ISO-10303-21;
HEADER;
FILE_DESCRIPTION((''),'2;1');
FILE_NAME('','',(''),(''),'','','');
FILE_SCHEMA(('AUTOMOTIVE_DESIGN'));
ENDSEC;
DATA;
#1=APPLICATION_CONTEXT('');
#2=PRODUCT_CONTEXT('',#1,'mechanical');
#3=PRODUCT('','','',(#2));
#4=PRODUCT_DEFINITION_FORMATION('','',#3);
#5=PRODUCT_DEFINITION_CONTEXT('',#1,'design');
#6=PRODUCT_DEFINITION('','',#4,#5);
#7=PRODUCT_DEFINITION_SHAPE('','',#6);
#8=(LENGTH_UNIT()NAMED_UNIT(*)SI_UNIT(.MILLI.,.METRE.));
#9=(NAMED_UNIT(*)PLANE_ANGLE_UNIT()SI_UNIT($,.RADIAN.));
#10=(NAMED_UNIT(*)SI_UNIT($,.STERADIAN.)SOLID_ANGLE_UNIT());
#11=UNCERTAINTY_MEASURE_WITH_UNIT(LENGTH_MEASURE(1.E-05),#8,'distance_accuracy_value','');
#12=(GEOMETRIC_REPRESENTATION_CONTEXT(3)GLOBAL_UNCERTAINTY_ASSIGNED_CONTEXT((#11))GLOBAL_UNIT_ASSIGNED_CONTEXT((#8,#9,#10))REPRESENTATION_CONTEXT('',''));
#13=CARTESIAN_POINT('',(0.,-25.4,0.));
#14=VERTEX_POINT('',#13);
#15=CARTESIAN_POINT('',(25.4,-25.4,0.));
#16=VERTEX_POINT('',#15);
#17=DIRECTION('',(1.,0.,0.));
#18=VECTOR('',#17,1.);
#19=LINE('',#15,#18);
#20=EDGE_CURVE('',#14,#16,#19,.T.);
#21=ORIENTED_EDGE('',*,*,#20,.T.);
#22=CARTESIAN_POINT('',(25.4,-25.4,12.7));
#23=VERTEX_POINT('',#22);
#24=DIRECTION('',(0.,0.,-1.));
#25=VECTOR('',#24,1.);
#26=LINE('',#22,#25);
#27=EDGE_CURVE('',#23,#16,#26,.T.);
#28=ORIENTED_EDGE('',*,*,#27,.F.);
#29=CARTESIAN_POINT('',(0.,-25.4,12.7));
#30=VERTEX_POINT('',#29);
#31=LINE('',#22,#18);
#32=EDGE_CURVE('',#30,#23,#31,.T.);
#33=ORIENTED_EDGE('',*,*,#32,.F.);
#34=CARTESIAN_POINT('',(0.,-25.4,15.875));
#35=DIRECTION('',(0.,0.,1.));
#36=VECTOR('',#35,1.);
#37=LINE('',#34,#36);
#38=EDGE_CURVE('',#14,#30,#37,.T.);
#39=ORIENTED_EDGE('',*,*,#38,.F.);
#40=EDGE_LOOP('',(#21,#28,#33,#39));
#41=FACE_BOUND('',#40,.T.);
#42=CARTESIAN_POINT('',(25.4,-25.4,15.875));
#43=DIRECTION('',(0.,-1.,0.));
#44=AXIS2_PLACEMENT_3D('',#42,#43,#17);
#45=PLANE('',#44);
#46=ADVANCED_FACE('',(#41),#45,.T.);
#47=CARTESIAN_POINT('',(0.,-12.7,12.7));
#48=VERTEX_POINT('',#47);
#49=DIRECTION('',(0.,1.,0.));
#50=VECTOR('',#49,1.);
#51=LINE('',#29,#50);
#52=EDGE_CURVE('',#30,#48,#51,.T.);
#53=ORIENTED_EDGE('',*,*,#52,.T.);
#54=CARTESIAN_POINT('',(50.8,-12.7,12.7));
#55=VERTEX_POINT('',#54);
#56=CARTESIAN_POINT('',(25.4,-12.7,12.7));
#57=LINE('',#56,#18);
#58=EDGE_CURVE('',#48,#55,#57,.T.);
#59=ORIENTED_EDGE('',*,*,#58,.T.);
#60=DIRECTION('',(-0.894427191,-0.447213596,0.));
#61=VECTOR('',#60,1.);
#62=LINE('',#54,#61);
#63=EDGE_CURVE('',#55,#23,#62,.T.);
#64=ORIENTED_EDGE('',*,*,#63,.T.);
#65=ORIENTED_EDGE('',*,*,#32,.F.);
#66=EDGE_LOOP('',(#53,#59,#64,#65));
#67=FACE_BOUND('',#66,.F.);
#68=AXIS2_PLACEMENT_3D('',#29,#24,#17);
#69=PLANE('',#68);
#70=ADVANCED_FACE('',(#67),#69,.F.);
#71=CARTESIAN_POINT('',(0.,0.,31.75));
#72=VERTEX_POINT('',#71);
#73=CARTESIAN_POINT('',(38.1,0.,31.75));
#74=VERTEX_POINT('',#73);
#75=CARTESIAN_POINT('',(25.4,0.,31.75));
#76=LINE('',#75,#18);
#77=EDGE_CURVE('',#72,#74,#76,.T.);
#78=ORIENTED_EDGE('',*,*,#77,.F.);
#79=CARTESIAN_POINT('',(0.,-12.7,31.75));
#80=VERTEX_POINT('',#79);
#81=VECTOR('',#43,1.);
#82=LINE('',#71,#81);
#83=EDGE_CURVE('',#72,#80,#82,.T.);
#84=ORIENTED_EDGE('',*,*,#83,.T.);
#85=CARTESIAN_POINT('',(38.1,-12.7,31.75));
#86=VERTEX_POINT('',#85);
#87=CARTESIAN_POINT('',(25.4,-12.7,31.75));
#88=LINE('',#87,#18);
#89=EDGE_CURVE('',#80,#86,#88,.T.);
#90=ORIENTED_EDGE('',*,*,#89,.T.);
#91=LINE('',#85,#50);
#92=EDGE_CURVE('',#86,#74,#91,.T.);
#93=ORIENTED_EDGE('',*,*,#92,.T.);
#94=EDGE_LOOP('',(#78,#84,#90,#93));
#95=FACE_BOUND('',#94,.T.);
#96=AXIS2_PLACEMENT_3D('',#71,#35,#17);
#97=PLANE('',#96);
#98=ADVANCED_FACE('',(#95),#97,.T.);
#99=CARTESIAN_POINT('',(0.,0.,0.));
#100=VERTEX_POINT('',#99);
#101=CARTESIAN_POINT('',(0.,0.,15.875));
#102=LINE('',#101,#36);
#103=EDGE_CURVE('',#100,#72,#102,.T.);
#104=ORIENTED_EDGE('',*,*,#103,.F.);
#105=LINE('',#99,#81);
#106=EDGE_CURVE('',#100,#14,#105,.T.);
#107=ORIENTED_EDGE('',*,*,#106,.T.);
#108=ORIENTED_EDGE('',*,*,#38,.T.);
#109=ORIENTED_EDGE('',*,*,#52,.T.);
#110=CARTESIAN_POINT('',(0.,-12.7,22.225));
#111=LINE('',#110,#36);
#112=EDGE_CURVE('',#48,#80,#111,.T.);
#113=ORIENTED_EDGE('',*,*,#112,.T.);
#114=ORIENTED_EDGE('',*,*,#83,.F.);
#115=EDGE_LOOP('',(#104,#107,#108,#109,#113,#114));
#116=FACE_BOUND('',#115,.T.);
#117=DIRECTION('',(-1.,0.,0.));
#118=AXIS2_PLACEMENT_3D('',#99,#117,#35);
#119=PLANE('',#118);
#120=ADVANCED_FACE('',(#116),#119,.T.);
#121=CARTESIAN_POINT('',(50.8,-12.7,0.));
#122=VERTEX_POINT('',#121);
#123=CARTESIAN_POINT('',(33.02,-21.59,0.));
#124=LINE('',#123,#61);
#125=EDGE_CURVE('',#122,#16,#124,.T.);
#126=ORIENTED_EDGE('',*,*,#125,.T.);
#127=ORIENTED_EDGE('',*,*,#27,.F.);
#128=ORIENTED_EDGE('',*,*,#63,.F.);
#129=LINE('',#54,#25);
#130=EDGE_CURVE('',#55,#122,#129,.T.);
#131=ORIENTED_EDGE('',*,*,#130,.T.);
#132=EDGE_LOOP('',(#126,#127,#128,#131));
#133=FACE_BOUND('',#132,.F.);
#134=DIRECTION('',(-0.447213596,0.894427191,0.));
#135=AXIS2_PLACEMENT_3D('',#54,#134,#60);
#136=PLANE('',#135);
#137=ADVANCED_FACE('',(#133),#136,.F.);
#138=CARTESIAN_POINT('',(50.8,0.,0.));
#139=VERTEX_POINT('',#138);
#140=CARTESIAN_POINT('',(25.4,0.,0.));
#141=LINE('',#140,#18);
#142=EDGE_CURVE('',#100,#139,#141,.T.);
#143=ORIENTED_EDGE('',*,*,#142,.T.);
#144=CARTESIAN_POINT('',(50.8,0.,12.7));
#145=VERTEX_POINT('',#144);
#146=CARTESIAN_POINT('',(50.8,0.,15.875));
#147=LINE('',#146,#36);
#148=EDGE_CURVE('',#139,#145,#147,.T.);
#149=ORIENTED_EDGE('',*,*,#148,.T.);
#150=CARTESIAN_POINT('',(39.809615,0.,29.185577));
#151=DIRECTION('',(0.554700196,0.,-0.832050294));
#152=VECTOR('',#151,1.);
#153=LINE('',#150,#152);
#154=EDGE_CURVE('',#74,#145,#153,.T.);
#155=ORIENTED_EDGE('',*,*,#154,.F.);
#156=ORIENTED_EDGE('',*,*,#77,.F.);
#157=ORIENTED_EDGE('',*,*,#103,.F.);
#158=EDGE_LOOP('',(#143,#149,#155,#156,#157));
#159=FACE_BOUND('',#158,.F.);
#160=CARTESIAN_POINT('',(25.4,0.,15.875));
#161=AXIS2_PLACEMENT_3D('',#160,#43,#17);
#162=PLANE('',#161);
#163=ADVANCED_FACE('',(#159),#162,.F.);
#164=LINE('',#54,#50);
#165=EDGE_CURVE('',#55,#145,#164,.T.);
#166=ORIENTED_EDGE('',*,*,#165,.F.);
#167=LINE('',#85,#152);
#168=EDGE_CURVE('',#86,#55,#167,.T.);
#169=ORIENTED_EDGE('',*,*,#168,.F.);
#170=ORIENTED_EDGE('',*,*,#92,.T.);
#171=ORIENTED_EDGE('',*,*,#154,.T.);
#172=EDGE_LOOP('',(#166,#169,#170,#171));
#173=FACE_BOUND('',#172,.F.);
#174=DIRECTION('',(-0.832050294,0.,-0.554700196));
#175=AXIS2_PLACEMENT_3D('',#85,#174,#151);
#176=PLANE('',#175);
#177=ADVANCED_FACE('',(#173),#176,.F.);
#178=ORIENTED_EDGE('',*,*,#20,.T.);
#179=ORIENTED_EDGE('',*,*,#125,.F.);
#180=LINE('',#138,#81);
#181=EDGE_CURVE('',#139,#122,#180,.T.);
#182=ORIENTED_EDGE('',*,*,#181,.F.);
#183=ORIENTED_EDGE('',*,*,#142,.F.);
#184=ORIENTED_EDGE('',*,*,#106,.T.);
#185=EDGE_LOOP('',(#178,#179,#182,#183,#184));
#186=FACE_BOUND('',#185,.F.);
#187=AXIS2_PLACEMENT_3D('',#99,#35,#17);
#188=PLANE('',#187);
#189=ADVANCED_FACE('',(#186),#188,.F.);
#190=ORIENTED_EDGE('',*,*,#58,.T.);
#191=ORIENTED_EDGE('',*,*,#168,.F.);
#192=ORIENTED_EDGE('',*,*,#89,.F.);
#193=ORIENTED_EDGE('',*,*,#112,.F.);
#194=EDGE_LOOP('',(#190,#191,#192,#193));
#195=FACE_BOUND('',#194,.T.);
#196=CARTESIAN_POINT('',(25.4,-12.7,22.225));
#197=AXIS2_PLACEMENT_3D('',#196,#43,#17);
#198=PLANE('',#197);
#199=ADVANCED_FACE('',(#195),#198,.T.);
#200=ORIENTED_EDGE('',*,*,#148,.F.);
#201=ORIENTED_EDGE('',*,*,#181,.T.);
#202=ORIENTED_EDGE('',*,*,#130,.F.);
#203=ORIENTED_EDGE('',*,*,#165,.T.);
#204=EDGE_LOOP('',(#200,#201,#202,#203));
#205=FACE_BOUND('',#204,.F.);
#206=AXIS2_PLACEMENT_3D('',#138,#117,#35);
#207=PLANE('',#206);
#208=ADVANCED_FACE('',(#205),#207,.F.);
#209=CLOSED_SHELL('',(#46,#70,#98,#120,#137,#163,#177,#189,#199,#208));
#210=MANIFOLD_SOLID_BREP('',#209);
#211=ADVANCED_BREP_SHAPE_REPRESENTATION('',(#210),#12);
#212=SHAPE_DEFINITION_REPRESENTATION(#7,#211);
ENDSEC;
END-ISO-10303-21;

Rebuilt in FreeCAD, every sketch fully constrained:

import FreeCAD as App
import Part
import Sketcher

V = App.Vector
Q = App.Units.Quantity

doc = App.newDocument("Part")
body = doc.addObject("PartDesign::Body", "Body")

sketch1 = body.newObject("Sketcher::SketchObject", "Sketch")
sketch1.AttachmentSupport = (doc.getObject("XZ_Plane"), [""])
sketch1.MapMode = "FlatFace"
sketch1.addGeometry([
    Part.LineSegment(V(0, 31.75, 0), V(0, 0, 0)),
    Part.LineSegment(V(0, 0, 0), V(50.8, 0, 0)),
    Part.LineSegment(V(50.8, 0, 0), V(50.8, 31.75, 0)),
    Part.LineSegment(V(50.8, 31.75, 0), V(0, 31.75, 0)),
], False)
sketch1.addConstraint([
    Sketcher.Constraint("Coincident", 0, 2, 1, 1),
    Sketcher.Constraint("Coincident", 1, 2, 2, 1),
    Sketcher.Constraint("Coincident", 2, 2, 3, 1),
    Sketcher.Constraint("Coincident", 3, 2, 0, 1),
    Sketcher.Constraint("Vertical", 0),
    Sketcher.Constraint("Horizontal", 1),
    Sketcher.Constraint("Vertical", 2),
    Sketcher.Constraint("Horizontal", 3),
    Sketcher.Constraint("Coincident", 0, 2, -1, 1),
    Sketcher.Constraint("DistanceX", 1, 1, 1, 2, Q("2 in")),
    Sketcher.Constraint("DistanceY", 0, 2, 0, 1, Q("1.25 in")),
])
pad1 = body.newObject("PartDesign::Pad", "Pad")
pad1.Profile = sketch1
pad1.Length = Q("1 in")

sketch2 = body.newObject("Sketcher::SketchObject", "Sketch001")
sketch2.AttachmentSupport = (doc.getObject("XZ_Plane"), [""])
sketch2.MapMode = "FlatFace"
sketch2.AttachmentOffset = App.Placement(V(0, 0, 1 * 25.4), App.Rotation())
sketch2.addGeometry([
    Part.LineSegment(V(0, 31.75, 0), V(0, 12.7, 0)),
    Part.LineSegment(V(0, 12.7, 0), V(50.8, 12.7, 0)),
    Part.LineSegment(V(50.8, 12.7, 0), V(50.8, 31.75, 0)),
    Part.LineSegment(V(50.8, 31.75, 0), V(0, 31.75, 0)),
], False)
sketch2.addConstraint([
    Sketcher.Constraint("Coincident", 0, 2, 1, 1),
    Sketcher.Constraint("Coincident", 1, 2, 2, 1),
    Sketcher.Constraint("Coincident", 2, 2, 3, 1),
    Sketcher.Constraint("Coincident", 3, 2, 0, 1),
    Sketcher.Constraint("Vertical", 0),
    Sketcher.Constraint("Horizontal", 1),
    Sketcher.Constraint("Vertical", 2),
    Sketcher.Constraint("Horizontal", 3),
    Sketcher.Constraint("PointOnObject", 0, 2, -2),
    Sketcher.Constraint("DistanceX", 1, 1, 1, 2, Q("2 in")),
    Sketcher.Constraint("DistanceY", 0, 2, 0, 1, Q("0.75 in")),
    Sketcher.Constraint("DistanceY", -1, 1, 0, 2, Q("0.5 in")),
])
pocket1 = body.newObject("PartDesign::Pocket", "Pocket")
pocket1.Profile = sketch2
pocket1.Length = Q("0.5 in")

sketch3 = body.newObject("Sketcher::SketchObject", "Sketch002")
sketch3.AttachmentSupport = (doc.getObject("XY_Plane"), [""])
sketch3.MapMode = "FlatFace"
sketch3.AttachmentOffset = App.Placement(V(0, 0, 0.5 * 25.4), App.Rotation())
sketch3.addGeometry([
    Part.LineSegment(V(50.8, -25.4, 0), V(50.8, -12.7, 0)),
    Part.LineSegment(V(50.8, -12.7, 0), V(25.4, -25.4, 0)),
    Part.LineSegment(V(25.4, -25.4, 0), V(50.8, -25.4, 0)),
], False)
sketch3.addConstraint([
    Sketcher.Constraint("Coincident", 0, 2, 1, 1),
    Sketcher.Constraint("Coincident", 1, 2, 2, 1),
    Sketcher.Constraint("Coincident", 2, 2, 0, 1),
    Sketcher.Constraint("Vertical", 0),
    Sketcher.Constraint("Horizontal", 2),
    Sketcher.Constraint("DistanceX", 2, 1, 2, 2, Q("1 in")),
    Sketcher.Constraint("DistanceY", 0, 1, 0, 2, Q("0.5 in")),
    Sketcher.Constraint("DistanceX", -1, 1, 0, 2, Q("2 in")),
    Sketcher.Constraint("DistanceY", 1, 2, -1, 1, Q("1 in")),
])
pocket2 = body.newObject("PartDesign::Pocket", "Pocket001")
pocket2.Profile = sketch3
pocket2.Length = Q("1 in")

sketch4 = body.newObject("Sketcher::SketchObject", "Sketch003")
sketch4.AttachmentSupport = (doc.getObject("XZ_Plane"), [""])
sketch4.MapMode = "FlatFace"
sketch4.AttachmentOffset = App.Placement(V(0, 0, 0.5 * 25.4), App.Rotation())
sketch4.addGeometry([
    Part.LineSegment(V(38.1, 31.75, 0), V(50.8, 12.7, 0)),
    Part.LineSegment(V(50.8, 12.7, 0), V(50.8, 31.75, 0)),
    Part.LineSegment(V(50.8, 31.75, 0), V(38.1, 31.75, 0)),
], False)
sketch4.addConstraint([
    Sketcher.Constraint("Coincident", 0, 2, 1, 1),
    Sketcher.Constraint("Coincident", 1, 2, 2, 1),
    Sketcher.Constraint("Coincident", 2, 2, 0, 1),
    Sketcher.Constraint("Vertical", 1),
    Sketcher.Constraint("Horizontal", 2),
    Sketcher.Constraint("DistanceX", 2, 2, 2, 1, Q("0.5 in")),
    Sketcher.Constraint("DistanceX", -1, 1, 0, 2, Q("2 in")),
    Sketcher.Constraint("DistanceY", 1, 1, 1, 2, Q("0.75 in")),
    Sketcher.Constraint("DistanceY", -1, 1, 0, 2, Q("0.5 in")),
])
pocket3 = body.newObject("PartDesign::Pocket", "Pocket002")
pocket3.Profile = sketch4
pocket3.Length = Q("1 in")

doc.recompute()
